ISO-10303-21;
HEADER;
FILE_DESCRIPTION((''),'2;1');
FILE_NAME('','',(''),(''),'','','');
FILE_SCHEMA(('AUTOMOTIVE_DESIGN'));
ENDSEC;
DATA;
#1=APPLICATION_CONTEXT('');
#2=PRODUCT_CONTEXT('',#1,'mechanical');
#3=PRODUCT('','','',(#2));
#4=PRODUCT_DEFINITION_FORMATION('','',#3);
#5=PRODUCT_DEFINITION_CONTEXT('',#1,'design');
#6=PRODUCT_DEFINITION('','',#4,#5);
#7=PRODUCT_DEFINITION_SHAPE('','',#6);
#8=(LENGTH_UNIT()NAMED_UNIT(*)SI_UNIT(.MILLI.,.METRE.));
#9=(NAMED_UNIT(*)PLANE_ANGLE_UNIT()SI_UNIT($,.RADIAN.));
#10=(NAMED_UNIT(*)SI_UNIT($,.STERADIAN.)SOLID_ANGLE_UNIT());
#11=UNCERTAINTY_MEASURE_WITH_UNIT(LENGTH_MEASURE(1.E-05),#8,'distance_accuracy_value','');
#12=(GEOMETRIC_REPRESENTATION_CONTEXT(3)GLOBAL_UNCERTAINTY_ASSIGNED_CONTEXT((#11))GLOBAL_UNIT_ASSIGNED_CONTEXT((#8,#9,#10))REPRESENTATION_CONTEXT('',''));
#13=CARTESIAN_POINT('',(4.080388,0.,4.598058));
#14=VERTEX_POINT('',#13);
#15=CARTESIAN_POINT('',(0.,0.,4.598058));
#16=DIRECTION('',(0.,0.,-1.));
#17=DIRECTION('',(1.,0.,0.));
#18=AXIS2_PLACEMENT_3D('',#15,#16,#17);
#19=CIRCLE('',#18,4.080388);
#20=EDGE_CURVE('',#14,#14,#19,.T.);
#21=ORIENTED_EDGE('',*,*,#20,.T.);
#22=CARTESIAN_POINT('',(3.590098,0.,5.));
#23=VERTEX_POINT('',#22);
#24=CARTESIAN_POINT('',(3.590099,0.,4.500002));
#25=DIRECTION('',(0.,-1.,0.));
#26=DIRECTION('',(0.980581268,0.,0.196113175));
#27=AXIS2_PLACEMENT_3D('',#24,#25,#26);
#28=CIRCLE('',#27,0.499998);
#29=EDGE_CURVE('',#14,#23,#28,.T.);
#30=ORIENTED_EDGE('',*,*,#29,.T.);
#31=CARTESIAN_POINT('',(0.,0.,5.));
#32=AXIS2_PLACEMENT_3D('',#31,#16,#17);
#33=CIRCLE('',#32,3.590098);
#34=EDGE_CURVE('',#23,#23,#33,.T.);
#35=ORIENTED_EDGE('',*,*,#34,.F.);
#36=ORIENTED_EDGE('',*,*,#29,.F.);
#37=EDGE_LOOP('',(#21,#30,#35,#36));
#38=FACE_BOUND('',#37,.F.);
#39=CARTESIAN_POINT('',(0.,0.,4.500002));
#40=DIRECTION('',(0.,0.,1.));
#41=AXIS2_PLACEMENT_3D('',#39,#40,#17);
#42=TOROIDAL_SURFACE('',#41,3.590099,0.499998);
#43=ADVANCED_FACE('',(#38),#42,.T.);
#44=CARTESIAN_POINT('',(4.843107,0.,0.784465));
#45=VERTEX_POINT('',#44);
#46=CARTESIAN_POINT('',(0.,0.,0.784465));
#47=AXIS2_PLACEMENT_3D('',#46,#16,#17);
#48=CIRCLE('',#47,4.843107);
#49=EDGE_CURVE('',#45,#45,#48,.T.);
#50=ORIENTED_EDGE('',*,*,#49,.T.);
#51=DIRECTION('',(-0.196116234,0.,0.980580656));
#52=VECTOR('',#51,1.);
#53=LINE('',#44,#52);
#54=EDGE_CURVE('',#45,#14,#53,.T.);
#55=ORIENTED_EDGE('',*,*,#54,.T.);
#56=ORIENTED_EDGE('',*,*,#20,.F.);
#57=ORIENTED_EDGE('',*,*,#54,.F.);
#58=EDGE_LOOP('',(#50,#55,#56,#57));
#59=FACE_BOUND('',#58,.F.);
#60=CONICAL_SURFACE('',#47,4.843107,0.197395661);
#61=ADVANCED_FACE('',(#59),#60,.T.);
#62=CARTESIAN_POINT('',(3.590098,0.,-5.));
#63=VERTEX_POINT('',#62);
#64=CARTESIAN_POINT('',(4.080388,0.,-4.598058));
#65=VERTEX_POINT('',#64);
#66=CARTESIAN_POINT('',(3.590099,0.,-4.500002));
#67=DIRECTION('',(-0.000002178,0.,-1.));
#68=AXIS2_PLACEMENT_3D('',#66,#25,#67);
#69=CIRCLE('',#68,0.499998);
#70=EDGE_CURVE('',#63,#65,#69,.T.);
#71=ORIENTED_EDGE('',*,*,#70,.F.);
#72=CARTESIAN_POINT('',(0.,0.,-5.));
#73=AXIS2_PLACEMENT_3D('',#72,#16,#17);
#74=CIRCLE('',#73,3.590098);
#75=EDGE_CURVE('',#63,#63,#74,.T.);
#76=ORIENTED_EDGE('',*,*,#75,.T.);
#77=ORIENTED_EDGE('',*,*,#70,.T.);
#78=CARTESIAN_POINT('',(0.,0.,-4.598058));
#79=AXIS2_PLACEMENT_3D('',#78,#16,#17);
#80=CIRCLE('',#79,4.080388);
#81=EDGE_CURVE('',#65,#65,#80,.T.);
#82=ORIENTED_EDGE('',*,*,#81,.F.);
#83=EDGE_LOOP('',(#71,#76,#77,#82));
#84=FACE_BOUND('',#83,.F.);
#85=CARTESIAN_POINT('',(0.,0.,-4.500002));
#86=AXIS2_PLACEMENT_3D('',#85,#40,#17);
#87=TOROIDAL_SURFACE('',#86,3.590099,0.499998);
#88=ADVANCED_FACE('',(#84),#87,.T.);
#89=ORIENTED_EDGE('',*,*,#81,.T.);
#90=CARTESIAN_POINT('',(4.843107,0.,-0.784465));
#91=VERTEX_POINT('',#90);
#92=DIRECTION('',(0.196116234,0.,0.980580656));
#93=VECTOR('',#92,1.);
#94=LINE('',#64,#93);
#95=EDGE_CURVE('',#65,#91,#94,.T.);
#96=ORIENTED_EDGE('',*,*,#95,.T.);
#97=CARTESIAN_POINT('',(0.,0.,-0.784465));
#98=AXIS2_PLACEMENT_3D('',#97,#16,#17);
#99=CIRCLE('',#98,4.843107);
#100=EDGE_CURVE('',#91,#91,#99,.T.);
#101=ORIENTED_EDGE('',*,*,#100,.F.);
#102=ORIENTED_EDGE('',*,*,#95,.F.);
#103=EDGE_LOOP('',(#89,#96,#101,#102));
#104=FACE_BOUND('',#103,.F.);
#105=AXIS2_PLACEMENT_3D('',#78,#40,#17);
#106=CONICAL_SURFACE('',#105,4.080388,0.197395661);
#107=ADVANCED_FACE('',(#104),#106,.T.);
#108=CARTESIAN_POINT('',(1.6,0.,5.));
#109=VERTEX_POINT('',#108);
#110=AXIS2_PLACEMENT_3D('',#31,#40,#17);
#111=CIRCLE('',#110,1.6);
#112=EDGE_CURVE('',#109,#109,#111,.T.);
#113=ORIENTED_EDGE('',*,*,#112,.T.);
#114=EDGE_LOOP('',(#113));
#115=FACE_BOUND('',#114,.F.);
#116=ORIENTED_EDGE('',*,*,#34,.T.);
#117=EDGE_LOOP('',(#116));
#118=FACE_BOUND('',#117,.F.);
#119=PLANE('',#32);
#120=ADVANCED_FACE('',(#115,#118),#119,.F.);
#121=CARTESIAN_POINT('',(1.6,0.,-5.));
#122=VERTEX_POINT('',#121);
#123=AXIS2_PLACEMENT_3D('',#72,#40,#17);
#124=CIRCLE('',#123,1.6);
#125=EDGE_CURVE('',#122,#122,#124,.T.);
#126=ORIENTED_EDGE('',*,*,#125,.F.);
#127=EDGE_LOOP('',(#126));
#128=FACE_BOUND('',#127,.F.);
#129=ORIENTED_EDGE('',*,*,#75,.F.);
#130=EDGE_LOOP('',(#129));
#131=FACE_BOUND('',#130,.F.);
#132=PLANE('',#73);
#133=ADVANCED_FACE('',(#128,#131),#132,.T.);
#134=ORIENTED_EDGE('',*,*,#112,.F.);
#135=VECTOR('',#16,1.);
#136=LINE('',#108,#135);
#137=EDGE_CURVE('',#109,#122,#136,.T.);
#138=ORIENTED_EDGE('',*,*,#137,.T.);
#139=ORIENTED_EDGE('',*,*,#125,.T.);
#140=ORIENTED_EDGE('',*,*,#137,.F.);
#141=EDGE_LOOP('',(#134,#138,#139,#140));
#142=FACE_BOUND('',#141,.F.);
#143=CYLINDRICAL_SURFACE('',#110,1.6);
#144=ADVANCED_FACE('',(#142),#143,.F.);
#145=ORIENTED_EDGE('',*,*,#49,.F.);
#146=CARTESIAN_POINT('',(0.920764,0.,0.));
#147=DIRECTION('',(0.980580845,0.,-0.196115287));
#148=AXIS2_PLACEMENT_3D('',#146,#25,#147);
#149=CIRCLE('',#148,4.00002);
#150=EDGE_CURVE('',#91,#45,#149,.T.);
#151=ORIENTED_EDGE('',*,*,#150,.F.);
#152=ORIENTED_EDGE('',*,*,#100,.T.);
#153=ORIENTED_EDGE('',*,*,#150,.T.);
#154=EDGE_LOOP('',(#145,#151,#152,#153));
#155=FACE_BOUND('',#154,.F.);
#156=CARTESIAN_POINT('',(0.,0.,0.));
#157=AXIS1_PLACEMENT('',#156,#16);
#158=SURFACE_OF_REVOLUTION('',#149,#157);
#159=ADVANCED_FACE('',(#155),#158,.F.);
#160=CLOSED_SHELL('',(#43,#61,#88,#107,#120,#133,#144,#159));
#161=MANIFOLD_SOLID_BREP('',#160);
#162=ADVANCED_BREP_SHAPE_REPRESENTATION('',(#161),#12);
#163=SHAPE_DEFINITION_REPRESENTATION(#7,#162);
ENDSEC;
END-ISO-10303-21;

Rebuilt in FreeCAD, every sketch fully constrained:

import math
import FreeCAD as App
import Part
import Sketcher
Q = App.Units.Quantity

doc = App.newDocument("Part")
body = doc.addObject("PartDesign::Body", "Body")

# Sketch on XZ plane
sketch1 = body.newObject("Sketcher::SketchObject", "Sketch")
sketch1.AttachmentSupport = (doc.getObject("XZ_Plane"), [""])
sketch1.MapMode = "FlatFace"
sketch1.addGeometry([
    Part.LineSegment(App.Vector(4.843107, 0.784465, 0), App.Vector(4.080388, 4.598058, 0)),  # 0
    Part.ArcOfCircle(Part.Circle(App.Vector(3.590099, 4.500002, 0), App.Vector(0, 0, 1), 0.499998), math.radians(11.30976), math.radians(90.000125)),  # 1
    Part.LineSegment(App.Vector(3.590098, 5, 0), App.Vector(0, 5, 0)),  # 2
    Part.LineSegment(App.Vector(0, 5, 0), App.Vector(0, -5, 0)),  # 3
    Part.LineSegment(App.Vector(0, -5, 0), App.Vector(3.590098, -5, 0)),  # 4
    Part.ArcOfCircle(Part.Circle(App.Vector(3.590099, -4.500002, 0), App.Vector(0, 0, 1), 0.499998), math.radians(-90.000125), math.radians(-11.30976)),  # 5
    Part.LineSegment(App.Vector(4.080388, -4.598058, 0), App.Vector(4.843107, -0.784465, 0)),  # 6
    Part.ArcOfCircle(Part.Circle(App.Vector(0.920764, 0, 0), App.Vector(0, 0, 1), 4.00002), math.radians(-11.309883), math.radians(11.309883)),  # 7
], False)
sketch1.addConstraint([
    Sketcher.Constraint("Coincident", 0, 2, 1, 1),
    Sketcher.Constraint("Coincident", 1, 2, 2, 1),
    Sketcher.Constraint("Coincident", 2, 2, 3, 1),
    Sketcher.Constraint("Coincident", 3, 2, 4, 1),
    Sketcher.Constraint("Coincident", 4, 2, 5, 1),
    Sketcher.Constraint("Coincident", 5, 2, 6, 1),
    Sketcher.Constraint("Tangent", 6, 2, 7, 1),
    Sketcher.Constraint("Tangent", 7, 2, 0, 1),
    Sketcher.Constraint("Horizontal", 2),
    Sketcher.Constraint("Vertical", 3),
    Sketcher.Constraint("Horizontal", 4),
    Sketcher.Constraint("Equal", 1, 5),
    Sketcher.Constraint("Symmetric", 2, 2, 3, 2, -1, 1),
    Sketcher.Constraint("Symmetric", 0, 2, 5, 2, -1),
    Sketcher.Constraint("PointOnObject", 7, 3, -1),
    Sketcher.Constraint("Vertical", 5, 3, 1, 2),
    Sketcher.Constraint("Vertical", 1, 2, 4, 2),
    Sketcher.Constraint("Radius", 1, Q("0.499998 mm")),
    Sketcher.Constraint("DistanceY", 3, 2, 3, 1, Q("10 mm")),
    Sketcher.Constraint("Radius", 7, Q("4.00002 mm")),
    Sketcher.Constraint("DistanceX", -1, 1, 1, 3, Q("3.590099 mm")),
    Sketcher.Constraint("DistanceX", 1, 3, 0, 2, Q("0.490289 mm")),
    Sketcher.Constraint("DistanceX", 5, 2, 6, 2, Q("0.762719 mm")),
])
revolution = body.newObject("PartDesign::Revolution", "Revolution")
revolution.Profile = sketch1
revolution.ReferenceAxis = (sketch1, ["V_Axis"])
revolution.Angle = 360

# Sketch on XY plane
sketch2 = body.newObject("Sketcher::SketchObject", "Sketch001")
sketch2.AttachmentSupport = (doc.getObject("XY_Plane"), [""])
sketch2.MapMode = "FlatFace"
sketch2.AttachmentOffset = App.Placement(App.Vector(0, 0, 5), App.Rotation())
sketch2.addGeometry(Part.Circle(App.Vector(0, 0, 0), App.Vector(0, 0, 1), 1.6), False)
sketch2.addConstraint([
    Sketcher.Constraint("Coincident", 0, 3, -1, 1),
    Sketcher.Constraint("Diameter", 0, Q("3.2 mm")),
])
pocket1 = body.newObject("PartDesign::Pocket", "Pocket")
pocket1.Profile = sketch2
pocket1.Type = "ThroughAll"

doc.recompute()
